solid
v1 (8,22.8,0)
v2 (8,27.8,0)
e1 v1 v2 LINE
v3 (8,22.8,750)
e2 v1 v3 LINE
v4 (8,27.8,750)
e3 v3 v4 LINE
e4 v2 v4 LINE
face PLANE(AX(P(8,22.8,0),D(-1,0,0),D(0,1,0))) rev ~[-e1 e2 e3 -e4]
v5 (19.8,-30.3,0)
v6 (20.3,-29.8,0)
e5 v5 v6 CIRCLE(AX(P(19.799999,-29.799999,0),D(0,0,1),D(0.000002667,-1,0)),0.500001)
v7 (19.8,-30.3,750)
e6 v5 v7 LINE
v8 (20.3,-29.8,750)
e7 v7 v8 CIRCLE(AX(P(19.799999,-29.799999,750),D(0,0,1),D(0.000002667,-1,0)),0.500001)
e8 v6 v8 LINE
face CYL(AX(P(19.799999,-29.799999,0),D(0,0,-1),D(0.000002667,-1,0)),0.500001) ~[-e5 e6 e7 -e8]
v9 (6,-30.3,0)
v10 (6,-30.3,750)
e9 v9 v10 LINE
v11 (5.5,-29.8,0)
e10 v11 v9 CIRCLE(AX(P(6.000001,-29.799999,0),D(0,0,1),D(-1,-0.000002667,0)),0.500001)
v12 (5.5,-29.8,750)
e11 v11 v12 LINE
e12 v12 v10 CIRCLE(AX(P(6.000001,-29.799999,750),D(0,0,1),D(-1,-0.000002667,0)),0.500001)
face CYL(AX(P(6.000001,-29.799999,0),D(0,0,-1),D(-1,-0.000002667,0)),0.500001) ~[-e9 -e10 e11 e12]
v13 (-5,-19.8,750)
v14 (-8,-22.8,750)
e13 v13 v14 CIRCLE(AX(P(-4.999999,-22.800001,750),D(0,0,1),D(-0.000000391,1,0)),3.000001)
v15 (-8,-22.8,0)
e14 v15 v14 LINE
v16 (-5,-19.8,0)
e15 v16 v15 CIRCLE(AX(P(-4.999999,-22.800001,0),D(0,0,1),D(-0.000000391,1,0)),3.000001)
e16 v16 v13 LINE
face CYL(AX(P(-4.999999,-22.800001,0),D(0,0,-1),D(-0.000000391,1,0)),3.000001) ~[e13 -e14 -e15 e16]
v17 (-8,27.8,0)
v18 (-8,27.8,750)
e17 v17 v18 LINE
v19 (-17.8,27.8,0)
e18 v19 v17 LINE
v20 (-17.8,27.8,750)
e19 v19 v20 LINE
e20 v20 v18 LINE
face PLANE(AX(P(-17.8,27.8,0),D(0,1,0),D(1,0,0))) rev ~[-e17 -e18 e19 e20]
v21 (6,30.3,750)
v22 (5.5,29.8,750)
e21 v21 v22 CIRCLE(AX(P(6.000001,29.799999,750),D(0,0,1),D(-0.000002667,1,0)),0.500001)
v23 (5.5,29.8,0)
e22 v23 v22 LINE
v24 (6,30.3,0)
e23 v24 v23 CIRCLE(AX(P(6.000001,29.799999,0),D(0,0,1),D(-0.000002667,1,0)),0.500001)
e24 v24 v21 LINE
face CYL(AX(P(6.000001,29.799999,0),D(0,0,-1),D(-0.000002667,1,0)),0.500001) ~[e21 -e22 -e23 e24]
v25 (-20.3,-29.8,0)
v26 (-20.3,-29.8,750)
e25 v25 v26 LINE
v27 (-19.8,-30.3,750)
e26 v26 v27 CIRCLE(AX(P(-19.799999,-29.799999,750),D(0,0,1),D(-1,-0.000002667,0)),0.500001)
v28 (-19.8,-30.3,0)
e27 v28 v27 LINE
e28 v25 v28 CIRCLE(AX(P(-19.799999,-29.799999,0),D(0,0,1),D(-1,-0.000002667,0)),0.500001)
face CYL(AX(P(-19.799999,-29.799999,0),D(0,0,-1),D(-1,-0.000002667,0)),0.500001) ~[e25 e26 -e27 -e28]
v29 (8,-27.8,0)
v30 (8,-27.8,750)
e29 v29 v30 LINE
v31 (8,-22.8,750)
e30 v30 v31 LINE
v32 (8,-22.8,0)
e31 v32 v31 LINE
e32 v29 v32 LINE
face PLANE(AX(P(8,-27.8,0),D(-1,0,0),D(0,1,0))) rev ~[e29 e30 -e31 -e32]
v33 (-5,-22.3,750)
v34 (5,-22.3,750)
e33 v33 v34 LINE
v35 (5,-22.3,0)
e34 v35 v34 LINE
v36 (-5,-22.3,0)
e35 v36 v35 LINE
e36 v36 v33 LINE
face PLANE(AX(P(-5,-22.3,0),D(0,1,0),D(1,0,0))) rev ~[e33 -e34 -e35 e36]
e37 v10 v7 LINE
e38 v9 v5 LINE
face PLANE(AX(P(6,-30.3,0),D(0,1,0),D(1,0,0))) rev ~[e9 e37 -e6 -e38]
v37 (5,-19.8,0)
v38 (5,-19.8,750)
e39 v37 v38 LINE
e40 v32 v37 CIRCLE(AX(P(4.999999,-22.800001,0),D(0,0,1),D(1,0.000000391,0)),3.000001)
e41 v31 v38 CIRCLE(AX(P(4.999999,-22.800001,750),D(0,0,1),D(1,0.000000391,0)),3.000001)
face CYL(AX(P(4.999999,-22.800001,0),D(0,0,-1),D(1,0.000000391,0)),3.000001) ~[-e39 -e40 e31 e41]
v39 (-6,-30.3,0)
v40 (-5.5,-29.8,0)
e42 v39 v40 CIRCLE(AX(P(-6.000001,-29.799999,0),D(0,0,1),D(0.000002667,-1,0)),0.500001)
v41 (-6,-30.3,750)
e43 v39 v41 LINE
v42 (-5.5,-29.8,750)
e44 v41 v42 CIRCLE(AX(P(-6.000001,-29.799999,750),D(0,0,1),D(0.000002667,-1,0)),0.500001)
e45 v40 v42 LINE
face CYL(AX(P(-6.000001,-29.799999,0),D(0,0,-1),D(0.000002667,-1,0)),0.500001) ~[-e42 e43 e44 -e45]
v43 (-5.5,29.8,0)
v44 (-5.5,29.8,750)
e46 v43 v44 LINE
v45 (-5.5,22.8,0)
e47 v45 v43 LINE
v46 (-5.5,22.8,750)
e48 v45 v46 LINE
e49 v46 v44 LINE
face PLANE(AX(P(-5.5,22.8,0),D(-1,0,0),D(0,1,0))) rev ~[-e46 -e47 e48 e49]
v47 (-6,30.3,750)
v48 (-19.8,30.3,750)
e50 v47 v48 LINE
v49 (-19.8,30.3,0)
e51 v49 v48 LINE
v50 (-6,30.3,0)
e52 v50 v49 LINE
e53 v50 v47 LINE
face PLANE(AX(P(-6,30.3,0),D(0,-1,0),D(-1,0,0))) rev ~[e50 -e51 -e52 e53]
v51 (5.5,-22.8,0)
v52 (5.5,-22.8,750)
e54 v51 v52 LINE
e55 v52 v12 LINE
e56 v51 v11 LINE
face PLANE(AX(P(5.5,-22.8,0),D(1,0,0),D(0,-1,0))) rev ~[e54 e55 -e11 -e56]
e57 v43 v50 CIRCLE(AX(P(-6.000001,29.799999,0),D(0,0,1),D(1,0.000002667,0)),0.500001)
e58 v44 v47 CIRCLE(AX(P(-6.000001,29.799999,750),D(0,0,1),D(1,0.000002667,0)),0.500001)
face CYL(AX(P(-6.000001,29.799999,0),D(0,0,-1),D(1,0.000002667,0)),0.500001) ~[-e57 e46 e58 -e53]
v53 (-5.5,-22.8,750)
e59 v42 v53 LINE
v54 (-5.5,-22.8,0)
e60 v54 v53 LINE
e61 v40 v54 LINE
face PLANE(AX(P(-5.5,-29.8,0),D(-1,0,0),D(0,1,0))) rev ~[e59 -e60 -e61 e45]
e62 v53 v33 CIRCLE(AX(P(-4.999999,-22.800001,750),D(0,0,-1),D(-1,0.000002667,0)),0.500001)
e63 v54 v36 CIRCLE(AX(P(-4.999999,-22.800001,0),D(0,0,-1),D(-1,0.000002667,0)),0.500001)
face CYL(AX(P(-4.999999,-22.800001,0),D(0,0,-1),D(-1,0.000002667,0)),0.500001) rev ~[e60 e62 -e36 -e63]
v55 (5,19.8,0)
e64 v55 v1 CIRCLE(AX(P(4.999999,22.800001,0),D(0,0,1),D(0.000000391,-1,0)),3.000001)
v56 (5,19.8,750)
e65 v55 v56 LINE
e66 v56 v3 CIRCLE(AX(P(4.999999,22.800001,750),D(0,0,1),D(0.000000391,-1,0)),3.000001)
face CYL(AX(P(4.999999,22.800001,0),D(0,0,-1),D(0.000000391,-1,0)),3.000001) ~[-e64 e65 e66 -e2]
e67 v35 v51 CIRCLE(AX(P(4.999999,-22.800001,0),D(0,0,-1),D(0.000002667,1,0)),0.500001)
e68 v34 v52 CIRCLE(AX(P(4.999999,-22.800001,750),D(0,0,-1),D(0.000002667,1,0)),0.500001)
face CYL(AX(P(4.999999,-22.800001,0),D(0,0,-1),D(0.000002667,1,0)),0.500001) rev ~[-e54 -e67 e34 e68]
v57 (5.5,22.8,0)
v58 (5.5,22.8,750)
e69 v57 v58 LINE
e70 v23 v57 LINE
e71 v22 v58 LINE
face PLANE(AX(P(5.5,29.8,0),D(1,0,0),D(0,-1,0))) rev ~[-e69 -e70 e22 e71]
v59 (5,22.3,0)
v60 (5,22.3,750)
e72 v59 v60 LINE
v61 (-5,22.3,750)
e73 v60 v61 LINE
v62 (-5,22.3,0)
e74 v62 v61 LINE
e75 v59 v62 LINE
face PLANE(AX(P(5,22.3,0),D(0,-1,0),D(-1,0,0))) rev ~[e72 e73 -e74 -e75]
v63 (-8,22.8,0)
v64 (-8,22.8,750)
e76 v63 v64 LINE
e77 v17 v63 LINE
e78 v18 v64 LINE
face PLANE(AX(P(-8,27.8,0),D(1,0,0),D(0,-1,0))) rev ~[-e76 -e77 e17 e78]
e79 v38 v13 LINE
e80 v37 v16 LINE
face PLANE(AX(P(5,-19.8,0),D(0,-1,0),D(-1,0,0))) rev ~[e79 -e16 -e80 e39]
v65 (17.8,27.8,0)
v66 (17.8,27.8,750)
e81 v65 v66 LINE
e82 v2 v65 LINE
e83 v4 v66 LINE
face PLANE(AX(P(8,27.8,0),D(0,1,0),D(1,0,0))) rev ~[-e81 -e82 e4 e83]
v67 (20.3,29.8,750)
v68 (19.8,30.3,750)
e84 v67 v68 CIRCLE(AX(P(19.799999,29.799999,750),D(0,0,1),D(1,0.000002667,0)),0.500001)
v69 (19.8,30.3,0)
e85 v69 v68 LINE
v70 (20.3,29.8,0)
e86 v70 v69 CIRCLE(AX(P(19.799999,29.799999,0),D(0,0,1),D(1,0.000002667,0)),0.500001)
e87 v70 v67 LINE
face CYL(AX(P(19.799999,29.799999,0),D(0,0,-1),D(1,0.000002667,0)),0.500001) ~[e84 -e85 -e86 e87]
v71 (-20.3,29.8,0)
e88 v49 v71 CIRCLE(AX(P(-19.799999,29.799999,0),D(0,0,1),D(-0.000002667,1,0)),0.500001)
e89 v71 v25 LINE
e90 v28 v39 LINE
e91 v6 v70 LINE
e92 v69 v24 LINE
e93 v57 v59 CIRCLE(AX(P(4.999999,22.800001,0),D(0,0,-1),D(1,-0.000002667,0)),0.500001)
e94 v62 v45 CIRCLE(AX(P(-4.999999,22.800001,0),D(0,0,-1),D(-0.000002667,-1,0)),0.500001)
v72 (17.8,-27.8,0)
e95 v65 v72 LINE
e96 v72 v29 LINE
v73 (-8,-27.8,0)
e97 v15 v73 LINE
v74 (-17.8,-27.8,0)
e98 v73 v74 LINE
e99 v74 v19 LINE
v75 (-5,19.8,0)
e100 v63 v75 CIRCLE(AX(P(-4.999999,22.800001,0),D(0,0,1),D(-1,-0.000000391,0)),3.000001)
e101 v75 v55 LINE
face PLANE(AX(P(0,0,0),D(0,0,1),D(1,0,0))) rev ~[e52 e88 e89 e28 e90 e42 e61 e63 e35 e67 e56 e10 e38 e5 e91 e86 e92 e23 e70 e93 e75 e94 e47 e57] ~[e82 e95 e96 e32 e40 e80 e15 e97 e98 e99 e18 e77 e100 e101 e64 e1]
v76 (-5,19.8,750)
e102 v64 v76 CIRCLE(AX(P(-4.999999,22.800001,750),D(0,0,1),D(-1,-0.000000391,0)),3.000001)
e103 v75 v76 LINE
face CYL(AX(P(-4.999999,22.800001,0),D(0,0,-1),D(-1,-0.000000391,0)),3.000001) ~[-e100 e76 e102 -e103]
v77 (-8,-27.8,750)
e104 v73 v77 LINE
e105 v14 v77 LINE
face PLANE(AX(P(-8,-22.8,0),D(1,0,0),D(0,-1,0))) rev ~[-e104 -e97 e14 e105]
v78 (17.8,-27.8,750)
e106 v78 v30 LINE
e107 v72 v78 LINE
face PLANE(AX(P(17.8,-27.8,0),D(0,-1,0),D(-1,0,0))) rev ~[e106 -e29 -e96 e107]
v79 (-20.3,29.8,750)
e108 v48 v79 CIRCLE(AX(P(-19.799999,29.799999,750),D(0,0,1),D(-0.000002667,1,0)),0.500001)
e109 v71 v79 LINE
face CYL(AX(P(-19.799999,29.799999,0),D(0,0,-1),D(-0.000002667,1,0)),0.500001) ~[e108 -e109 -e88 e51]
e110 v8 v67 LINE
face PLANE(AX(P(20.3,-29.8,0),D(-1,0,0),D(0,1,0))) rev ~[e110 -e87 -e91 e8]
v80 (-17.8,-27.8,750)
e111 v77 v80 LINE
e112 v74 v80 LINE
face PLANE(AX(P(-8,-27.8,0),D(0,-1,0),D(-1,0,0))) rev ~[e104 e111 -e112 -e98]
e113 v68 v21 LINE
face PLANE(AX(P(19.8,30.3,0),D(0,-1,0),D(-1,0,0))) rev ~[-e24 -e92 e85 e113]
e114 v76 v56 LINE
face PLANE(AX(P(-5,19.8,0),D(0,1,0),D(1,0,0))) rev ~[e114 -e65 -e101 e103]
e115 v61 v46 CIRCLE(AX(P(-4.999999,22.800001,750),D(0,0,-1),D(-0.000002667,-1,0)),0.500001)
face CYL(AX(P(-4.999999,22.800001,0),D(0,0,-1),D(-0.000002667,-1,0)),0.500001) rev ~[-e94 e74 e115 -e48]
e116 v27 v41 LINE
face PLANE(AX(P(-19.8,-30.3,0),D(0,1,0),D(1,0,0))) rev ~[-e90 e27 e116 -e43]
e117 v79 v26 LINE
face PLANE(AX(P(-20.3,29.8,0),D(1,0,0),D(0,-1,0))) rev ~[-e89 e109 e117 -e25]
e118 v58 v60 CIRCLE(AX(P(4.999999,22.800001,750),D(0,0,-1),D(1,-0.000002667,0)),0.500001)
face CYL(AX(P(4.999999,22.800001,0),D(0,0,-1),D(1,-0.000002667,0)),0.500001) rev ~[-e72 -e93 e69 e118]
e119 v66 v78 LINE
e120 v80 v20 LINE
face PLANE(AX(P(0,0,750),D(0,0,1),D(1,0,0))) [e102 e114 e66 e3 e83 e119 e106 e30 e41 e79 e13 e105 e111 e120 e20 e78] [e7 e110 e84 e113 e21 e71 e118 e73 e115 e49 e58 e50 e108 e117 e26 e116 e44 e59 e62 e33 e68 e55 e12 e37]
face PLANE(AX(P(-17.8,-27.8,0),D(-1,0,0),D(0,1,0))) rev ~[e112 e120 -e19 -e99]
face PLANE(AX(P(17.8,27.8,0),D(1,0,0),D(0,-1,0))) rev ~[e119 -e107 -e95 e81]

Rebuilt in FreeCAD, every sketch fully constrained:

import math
import FreeCAD as App
import Part
import Sketcher
from FreeCAD import Vector
Q = App.Units.Quantity

doc = App.newDocument("Part")
body = doc.addObject("PartDesign::Body", "Body")

sketch1 = body.newObject("Sketcher::SketchObject", "Sketch")
sketch1.AttachmentSupport = (doc.getObject("XY_Plane"), [""])
sketch1.MapMode = "FlatFace"
sketch1.addGeometry([
    Part.ArcOfCircle(Part.Circle(Vector(19.799999, -29.799999, 0), Vector(0, 0, 1), 0.500001), math.radians(-89.999847), math.radians(-0.000153)),
    Part.LineSegment(Vector(20.3, -29.8, 0), Vector(20.3, 29.8, 0)),
    Part.ArcOfCircle(Part.Circle(Vector(19.799999, 29.799999, 0), Vector(0, 0, 1), 0.500001), math.radians(0.000153), math.radians(89.999847)),
    Part.LineSegment(Vector(19.8, 30.3, 0), Vector(6, 30.3, 0)),
    Part.ArcOfCircle(Part.Circle(Vector(6.000001, 29.799999, 0), Vector(0, 0, 1), 0.500001), math.radians(90.000153), math.radians(179.999847)),
    Part.LineSegment(Vector(5.5, 29.8, 0), Vector(5.5, 22.8, 0)),
    Part.ArcOfCircle(Part.Circle(Vector(4.999999, 22.800001, 0), Vector(0, 0, 1), 0.500001), math.radians(-89.999847), math.radians(-0.000153)),
    Part.LineSegment(Vector(5, 22.3, 0), Vector(-5, 22.3, 0)),
    Part.ArcOfCircle(Part.Circle(Vector(-4.999999, 22.800001, 0), Vector(0, 0, 1), 0.500001), math.radians(-179.999847), math.radians(-90.000153)),
    Part.LineSegment(Vector(-5.5, 22.8, 0), Vector(-5.5, 29.8, 0)),
    Part.ArcOfCircle(Part.Circle(Vector(-6.000001, 29.799999, 0), Vector(0, 0, 1), 0.500001), math.radians(0.000153), math.radians(89.999847)),
    Part.LineSegment(Vector(-6, 30.3, 0), Vector(-19.8, 30.3, 0)),
    Part.ArcOfCircle(Part.Circle(Vector(-19.799999, 29.799999, 0), Vector(0, 0, 1), 0.500001), math.radians(90.000153), math.radians(179.999847)),
    Part.LineSegment(Vector(-20.3, 29.8, 0), Vector(-20.3, -29.8, 0)),
    Part.ArcOfCircle(Part.Circle(Vector(-19.799999, -29.799999, 0), Vector(0, 0, 1), 0.500001), math.radians(-179.999847), math.radians(-90.000153)),
    Part.LineSegment(Vector(-19.8, -30.3, 0), Vector(-6, -30.3, 0)),
    Part.ArcOfCircle(Part.Circle(Vector(-6.000001, -29.799999, 0), Vector(0, 0, 1), 0.500001), math.radians(-89.999847), math.radians(-0.000153)),
    Part.LineSegment(Vector(-5.5, -29.8, 0), Vector(-5.5, -22.8, 0)),
    Part.ArcOfCircle(Part.Circle(Vector(-4.999999, -22.800001, 0), Vector(0, 0, 1), 0.500001), math.radians(90.000153), math.radians(179.999847)),
    Part.LineSegment(Vector(-5, -22.3, 0), Vector(5, -22.3, 0)),
    Part.ArcOfCircle(Part.Circle(Vector(4.999999, -22.800001, 0), Vector(0, 0, 1), 0.500001), math.radians(0.000153), math.radians(89.999847)),
    Part.LineSegment(Vector(5.5, -22.8, 0), Vector(5.5, -29.8, 0)),
    Part.ArcOfCircle(Part.Circle(Vector(6.000001, -29.799999, 0), Vector(0, 0, 1), 0.500001), math.radians(-179.999847), math.radians(-90.000153)),
    Part.LineSegment(Vector(6, -30.3, 0), Vector(19.8, -30.3, 0)),
    Part.ArcOfCircle(Part.Circle(Vector(4.999999, -22.800001, 0), Vector(0, 0, 1), 3.000001), math.radians(0.000022), math.radians(89.999978)),
    Part.LineSegment(Vector(5, -19.8, 0), Vector(-5, -19.8, 0)),
    Part.ArcOfCircle(Part.Circle(Vector(-4.999999, -22.800001, 0), Vector(0, 0, 1), 3.000001), math.radians(90.000022), math.radians(179.999978)),
    Part.LineSegment(Vector(-8, -22.8, 0), Vector(-8, -27.8, 0)),
    Part.LineSegment(Vector(-8, -27.8, 0), Vector(-17.8, -27.8, 0)),
    Part.LineSegment(Vector(-17.8, -27.8, 0), Vector(-17.8, 27.8, 0)),
    Part.LineSegment(Vector(-17.8, 27.8, 0), Vector(-8, 27.8, 0)),
    Part.LineSegment(Vector(-8, 27.8, 0), Vector(-8, 22.8, 0)),
    Part.ArcOfCircle(Part.Circle(Vector(-4.999999, 22.800001, 0), Vector(0, 0, 1), 3.000001), math.radians(-179.999978), math.radians(-90.000022)),
    Part.LineSegment(Vector(-5, 19.8, 0), Vector(5, 19.8, 0)),
    Part.ArcOfCircle(Part.Circle(Vector(4.999999, 22.800001, 0), Vector(0, 0, 1), 3.000001), math.radians(-89.999978), math.radians(-0.000022)),
    Part.LineSegment(Vector(8, 22.8, 0), Vector(8, 27.8, 0)),
    Part.LineSegment(Vector(8, 27.8, 0), Vector(17.8, 27.8, 0)),
    Part.LineSegment(Vector(17.8, 27.8, 0), Vector(17.8, -27.8, 0)),
    Part.LineSegment(Vector(17.8, -27.8, 0), Vector(8, -27.8, 0)),
    Part.LineSegment(Vector(8, -27.8, 0), Vector(8, -22.8, 0)),
], False)
sketch1.addConstraint([
    Sketcher.Constraint("Coincident", 0, 2, 1, 1),
    Sketcher.Constraint("Coincident", 1, 2, 2, 1),
    Sketcher.Constraint("Coincident", 2, 2, 3, 1),
    Sketcher.Constraint("Coincident", 3, 2, 4, 1),
    Sketcher.Constraint("Coincident", 4, 2, 5, 1),
    Sketcher.Constraint("Coincident", 5, 2, 6, 2),
    Sketcher.Constraint("Coincident", 6, 1, 7, 1),
    Sketcher.Constraint("Coincident", 7, 2, 8, 2),
    Sketcher.Constraint("Coincident", 8, 1, 9, 1),
    Sketcher.Constraint("Coincident", 9, 2, 10, 1),
    Sketcher.Constraint("Coincident", 10, 2, 11, 1),
    Sketcher.Constraint("Coincident", 11, 2, 12, 1),
    Sketcher.Constraint("Coincident", 12, 2, 13, 1),
    Sketcher.Constraint("Coincident", 13, 2, 14, 1),
    Sketcher.Constraint("Coincident", 14, 2, 15, 1),
    Sketcher.Constraint("Coincident", 15, 2, 16, 1),
    Sketcher.Constraint("Coincident", 16, 2, 17, 1),
    Sketcher.Constraint("Coincident", 17, 2, 18, 2),
    Sketcher.Constraint("Coincident", 18, 1, 19, 1),
    Sketcher.Constraint("Coincident", 19, 2, 20, 2),
    Sketcher.Constraint("Coincident", 20, 1, 21, 1),
    Sketcher.Constraint("Coincident", 21, 2, 22, 1),
    Sketcher.Constraint("Coincident", 22, 2, 23, 1),
    Sketcher.Constraint("Coincident", 23, 2, 0, 1),
    Sketcher.Constraint("Tangent", 24, 2, 25, 1),
    Sketcher.Constraint("Tangent", 25, 2, 26, 1),
    Sketcher.Constraint("Tangent", 26, 2, 27, 1),
    Sketcher.Constraint("Coincident", 27, 2, 28, 1),
    Sketcher.Constraint("Coincident", 28, 2, 29, 1),
    Sketcher.Constraint("Coincident", 29, 2, 30, 1),
    Sketcher.Constraint("Coincident", 30, 2, 31, 1),
    Sketcher.Constraint("Tangent", 31, 2, 32, 1),
    Sketcher.Constraint("Tangent", 32, 2, 33, 1),
    Sketcher.Constraint("Tangent", 33, 2, 34, 1),
    Sketcher.Constraint("Tangent", 34, 2, 35, 1),
    Sketcher.Constraint("Coincident", 35, 2, 36, 1),
    Sketcher.Constraint("Coincident", 36, 2, 37, 1),
    Sketcher.Constraint("Coincident", 37, 2, 38, 1),
    Sketcher.Constraint("Coincident", 38, 2, 39, 1),
    Sketcher.Constraint("Tangent", 39, 2, 24, 1),
    Sketcher.Constraint("Vertical", 1),
    Sketcher.Constraint("Horizontal", 3),
    Sketcher.Constraint("Vertical", 5),
    Sketcher.Constraint("Horizontal", 7),
    Sketcher.Constraint("Vertical", 9),
    Sketcher.Constraint("Horizontal", 11),
    Sketcher.Constraint("Vertical", 13),
    Sketcher.Constraint("Horizontal", 15),
    Sketcher.Constraint("Vertical", 17),
    Sketcher.Constraint("Horizontal", 19),
    Sketcher.Constraint("Vertical", 21),
    Sketcher.Constraint("Horizontal", 23),
    Sketcher.Constraint("Horizontal", 25),
    Sketcher.Constraint("Vertical", 27),
    Sketcher.Constraint("Horizontal", 28),
    Sketcher.Constraint("Vertical", 29),
    Sketcher.Constraint("Horizontal", 30),
    Sketcher.Constraint("Vertical", 31),
    Sketcher.Constraint("Horizontal", 33),
    Sketcher.Constraint("Vertical", 35),
    Sketcher.Constraint("Horizontal", 36),
    Sketcher.Constraint("Vertical", 37),
    Sketcher.Constraint("Horizontal", 38),
    Sketcher.Constraint("Vertical", 39),
    Sketcher.Constraint("Coincident", 24, 3, 20, 3),
    Sketcher.Constraint("Coincident", 26, 3, 18, 3),
    Sketcher.Constraint("Coincident", 32, 3, 8, 3),
    Sketcher.Constraint("Coincident", 34, 3, 6, 3),
    Sketcher.Constraint("Equal", 0, 2),
    Sketcher.Constraint("Equal", 2, 4),
    Sketcher.Constraint("Equal", 4, 6),
    Sketcher.Constraint("Equal", 6, 8),
    Sketcher.Constraint("Equal", 8, 10),
    Sketcher.Constraint("Equal", 10, 12),
    Sketcher.Constraint("Equal", 12, 14),
    Sketcher.Constraint("Equal", 14, 16),
    Sketcher.Constraint("Equal", 16, 18),
    Sketcher.Constraint("Equal", 18, 20),
    Sketcher.Constraint("Equal", 20, 22),
    Sketcher.Constraint("Equal", 26, 32),
    Sketcher.Constraint("Symmetric", 0, 3, 12, 3, -1, 1),
    Sketcher.Constraint("Symmetric", 4, 3, 16, 3, -1, 1),
    Sketcher.Constraint("Symmetric", 8, 3, 20, 3, -1, 1),
    Sketcher.Constraint("Symmetric", 28, 2, 36, 2, -1, 1),
    Sketcher.Constraint("Symmetric", 4, 3, 10, 3, -2),
    Sketcher.Constraint("Horizontal", 22, 3, 0, 2),
    Sketcher.Constraint("Horizontal", 12, 3, 1, 2),
    Sketcher.Constraint("Horizontal", 1, 2, 4, 2),
    Sketcher.Constraint("Horizontal", 34, 3, 5, 2),
    Sketcher.Constraint("Horizontal", 5, 2, 8, 1),
    Sketcher.Constraint("Horizontal", 4, 2, 9, 2),
    Sketcher.Constraint("Horizontal", 9, 2, 12, 2),
    Sketcher.Constraint("Horizontal", 0, 2, 13, 2),
    Sketcher.Constraint("Horizontal", 13, 2, 16, 2),
    Sketcher.Constraint("Horizontal", 26, 3, 17, 2),
    Sketcher.Constraint("Horizontal", 17, 2, 20, 1),
    Sketcher.Constraint("Horizontal", 16, 2, 21, 2),
    Sketcher.Constraint("Horizontal", 30, 2, 35, 2),
    Sketcher.Constraint("Horizontal", 28, 2, 37, 2),
    Sketcher.Constraint("Vertical", 0, 3, 2, 2),
    Sketcher.Constraint("Vertical", 22, 3, 3, 2),
    Sketcher.Constraint("Vertical", 34, 3, 6, 1),
    Sketcher.Constraint("Vertical", 32, 3, 7, 2),
    Sketcher.Constraint("Vertical", 16, 3, 10, 2),
    Sketcher.Constraint("Vertical", 14, 3, 11, 2),
    Sketcher.Constraint("Vertical", 11, 2, 14, 2),
    Sketcher.Constraint("Vertical", 10, 2, 15, 2),
    Sketcher.Constraint("Vertical", 7, 2, 18, 1),
    Sketcher.Constraint("Vertical", 6, 1, 19, 2),
    Sketcher.Constraint("Vertical", 3, 2, 22, 2),
    Sketcher.Constraint("Vertical", 2, 2, 23, 2),
    Sketcher.Constraint("Radius", 24, Q("3.000001 mm")),
    Sketcher.Constraint("Radius", 0, Q("0.500001 mm")),
    Sketcher.Constraint("DistanceX", 7, 2, 7, 1, Q("10 mm")),
    Sketcher.Constraint("DistanceY", 5, 2, 5, 1, Q("7 mm")),
    Sketcher.Constraint("DistanceY", 27, 2, 27, 1, Q("5 mm")),
    Sketcher.Constraint("DistanceX", 3, 2, 3, 1, Q("13.8 mm")),
    Sketcher.Constraint("DistanceX", 28, 2, 28, 1, Q("9.8 mm")),
    Sketcher.Constraint("DistanceY", 1, 1, 1, 2, Q("59.6 mm")),
])
pad1 = body.newObject("PartDesign::Pad", "Pad")
pad1.Profile = sketch1
pad1.Length = 750

doc.recompute()
